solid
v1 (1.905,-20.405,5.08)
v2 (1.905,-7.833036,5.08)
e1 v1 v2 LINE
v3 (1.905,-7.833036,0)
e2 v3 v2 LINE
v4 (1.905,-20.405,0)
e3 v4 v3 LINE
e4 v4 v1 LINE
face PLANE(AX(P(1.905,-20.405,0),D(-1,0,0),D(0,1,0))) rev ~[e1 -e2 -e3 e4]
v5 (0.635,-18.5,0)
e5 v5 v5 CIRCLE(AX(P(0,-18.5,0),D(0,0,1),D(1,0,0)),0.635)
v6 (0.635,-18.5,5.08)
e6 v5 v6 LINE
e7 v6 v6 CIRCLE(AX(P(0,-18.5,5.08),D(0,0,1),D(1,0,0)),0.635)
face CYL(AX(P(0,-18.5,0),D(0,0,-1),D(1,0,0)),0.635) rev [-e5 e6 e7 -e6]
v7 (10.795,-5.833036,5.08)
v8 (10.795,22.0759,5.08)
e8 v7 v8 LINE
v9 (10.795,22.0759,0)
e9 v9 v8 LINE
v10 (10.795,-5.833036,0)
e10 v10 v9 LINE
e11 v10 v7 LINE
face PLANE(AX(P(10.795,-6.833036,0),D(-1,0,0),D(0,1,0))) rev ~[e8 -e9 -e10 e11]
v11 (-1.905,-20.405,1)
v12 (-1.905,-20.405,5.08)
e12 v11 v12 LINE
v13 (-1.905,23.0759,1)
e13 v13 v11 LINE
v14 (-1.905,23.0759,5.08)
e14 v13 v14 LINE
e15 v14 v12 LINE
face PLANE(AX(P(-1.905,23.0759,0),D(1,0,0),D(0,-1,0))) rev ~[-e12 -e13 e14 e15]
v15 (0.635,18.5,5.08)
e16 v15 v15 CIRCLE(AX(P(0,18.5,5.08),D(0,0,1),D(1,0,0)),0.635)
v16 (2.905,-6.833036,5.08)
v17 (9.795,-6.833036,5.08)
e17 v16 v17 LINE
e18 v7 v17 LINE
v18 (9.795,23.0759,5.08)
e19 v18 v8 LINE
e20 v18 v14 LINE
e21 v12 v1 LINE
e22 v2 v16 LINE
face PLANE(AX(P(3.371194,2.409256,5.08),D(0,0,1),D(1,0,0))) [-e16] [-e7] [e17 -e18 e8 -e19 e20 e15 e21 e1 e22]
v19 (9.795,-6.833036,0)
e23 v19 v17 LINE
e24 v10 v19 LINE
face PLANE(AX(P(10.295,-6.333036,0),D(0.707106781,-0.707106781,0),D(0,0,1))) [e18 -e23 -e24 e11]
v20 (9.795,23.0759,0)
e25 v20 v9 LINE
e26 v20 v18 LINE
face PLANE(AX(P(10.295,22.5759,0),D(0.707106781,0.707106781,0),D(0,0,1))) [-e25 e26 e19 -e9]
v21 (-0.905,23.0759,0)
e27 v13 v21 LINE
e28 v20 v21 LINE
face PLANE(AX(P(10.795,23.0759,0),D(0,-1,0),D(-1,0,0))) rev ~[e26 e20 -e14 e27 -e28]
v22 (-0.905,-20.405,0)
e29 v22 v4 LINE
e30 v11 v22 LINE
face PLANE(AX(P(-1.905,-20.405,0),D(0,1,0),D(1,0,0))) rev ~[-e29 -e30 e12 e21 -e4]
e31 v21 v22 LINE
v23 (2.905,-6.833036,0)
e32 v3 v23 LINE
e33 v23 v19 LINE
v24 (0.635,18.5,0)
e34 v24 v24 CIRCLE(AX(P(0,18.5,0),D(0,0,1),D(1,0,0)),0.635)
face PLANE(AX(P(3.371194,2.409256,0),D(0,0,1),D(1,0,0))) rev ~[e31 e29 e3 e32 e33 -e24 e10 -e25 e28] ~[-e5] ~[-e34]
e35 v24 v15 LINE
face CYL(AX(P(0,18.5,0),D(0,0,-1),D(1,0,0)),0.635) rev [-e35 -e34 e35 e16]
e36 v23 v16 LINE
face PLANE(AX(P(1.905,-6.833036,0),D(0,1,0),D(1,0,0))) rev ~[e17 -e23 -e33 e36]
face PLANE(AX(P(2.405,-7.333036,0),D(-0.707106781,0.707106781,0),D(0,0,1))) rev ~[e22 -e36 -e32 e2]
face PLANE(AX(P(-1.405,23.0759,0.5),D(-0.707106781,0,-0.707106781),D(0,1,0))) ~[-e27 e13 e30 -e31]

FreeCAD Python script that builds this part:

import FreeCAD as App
import Part
import Sketcher
from FreeCAD import Vector
Q = App.Units.Quantity


def edges_at(feature, points):
    """Names of the edges that pass closest to the given points."""
    edges = feature.Shape.Edges
    near = lambda p: min(range(len(edges)), key=lambda i: edges[i].distToShape(Part.Vertex(*p))[0])
    return sorted({f"Edge{near(p) + 1}" for p in points})


def add_polygon(sketch, points):
    """Adds a closed chain of lines whose ends are joined by coincident constraints."""
    first, n = sketch.GeometryCount, len(points)
    for a, b in zip(points, points[1:] + points[:1]):
        sketch.addGeometry(Part.LineSegment(App.Vector(*a, 0), App.Vector(*b, 0)), False)
    for i in range(n):
        sketch.addConstraint(Sketcher.Constraint("Coincident", first + i, 2, first + (i + 1) % n, 1))

doc = App.newDocument("Part")
body = doc.addObject("PartDesign::Body", "Body")

# Sketch on XY plane
sketch1 = body.newObject("Sketcher::SketchObject", "Sketch")
sketch1.AttachmentSupport = (doc.getObject("XY_Plane"), [""])
sketch1.MapMode = "FlatFace"
add_polygon(sketch1, [(-1.9, 23.1), (-1.9, -20.4), (1.9, -20.4), (1.9, -6.8), (10.8, -6.8), (10.8, 23.1)])  # lines 0-5
sketch1.addGeometry(Part.Circle(Vector(0, -18.5, 0), Vector(0, 0, 1), 0.6), False)  # 6
sketch1.addGeometry(Part.Circle(Vector(0, 18.5, 0), Vector(0, 0, 1), 0.6), False)  # 7
sketch1.addConstraint([
    Sketcher.Constraint("Vertical", 0),
    Sketcher.Constraint("Horizontal", 1),
    Sketcher.Constraint("Vertical", 2),
    Sketcher.Constraint("Horizontal", 3),
    Sketcher.Constraint("Vertical", 4),
    Sketcher.Constraint("Horizontal", 5),
    Sketcher.Constraint("Equal", 6, 7),
    Sketcher.Constraint("Symmetric", 6, 3, 7, 3, -1, 1),
    Sketcher.Constraint("PointOnObject", 6, 3, -2),
    Sketcher.Constraint("Diameter", 6, Q("0.05 in")),
    Sketcher.Constraint("DistanceX", 5, 2, 5, 1, Q("0.5 in")),
    Sketcher.Constraint("DistanceX", 1, 1, 1, 2, Q("0.15 in")),
    Sketcher.Constraint("DistanceX", 0, 2, -1, 1, Q("0.075 in")),
    Sketcher.Constraint("DistanceY", 0, 2, 6, 3, Q("0.075 in")),
    Sketcher.Constraint("DistanceY", 0, 2, 0, 1, 43.4809),
    Sketcher.Constraint("DistanceY", -1, 1, 4, 2, Q("0.9085 in")),
    Sketcher.Constraint("DistanceY", 2, 1, 2, 2, 13.571964),
])
pad1 = body.newObject("PartDesign::Pad", "Pad")
pad1.Profile = sketch1
pad1.Length = Q("0.2 in")
doc.recompute()

chamfer = body.newObject("PartDesign::Chamfer", "Chamfer")
chamfer.Base = (pad1, edges_at(pad1, [(-1.905, 1.335, 0)]))
chamfer.Size = 1
doc.recompute()

chamfer2 = body.newObject("PartDesign::Chamfer", "Chamfer001")
chamfer2.Base = (chamfer, edges_at(chamfer, [(1.905, -6.833, 2.54), (10.795, -6.833, 2.54), (10.795, 23.076, 2.54)]))
chamfer2.Size = 1

doc.recompute()
